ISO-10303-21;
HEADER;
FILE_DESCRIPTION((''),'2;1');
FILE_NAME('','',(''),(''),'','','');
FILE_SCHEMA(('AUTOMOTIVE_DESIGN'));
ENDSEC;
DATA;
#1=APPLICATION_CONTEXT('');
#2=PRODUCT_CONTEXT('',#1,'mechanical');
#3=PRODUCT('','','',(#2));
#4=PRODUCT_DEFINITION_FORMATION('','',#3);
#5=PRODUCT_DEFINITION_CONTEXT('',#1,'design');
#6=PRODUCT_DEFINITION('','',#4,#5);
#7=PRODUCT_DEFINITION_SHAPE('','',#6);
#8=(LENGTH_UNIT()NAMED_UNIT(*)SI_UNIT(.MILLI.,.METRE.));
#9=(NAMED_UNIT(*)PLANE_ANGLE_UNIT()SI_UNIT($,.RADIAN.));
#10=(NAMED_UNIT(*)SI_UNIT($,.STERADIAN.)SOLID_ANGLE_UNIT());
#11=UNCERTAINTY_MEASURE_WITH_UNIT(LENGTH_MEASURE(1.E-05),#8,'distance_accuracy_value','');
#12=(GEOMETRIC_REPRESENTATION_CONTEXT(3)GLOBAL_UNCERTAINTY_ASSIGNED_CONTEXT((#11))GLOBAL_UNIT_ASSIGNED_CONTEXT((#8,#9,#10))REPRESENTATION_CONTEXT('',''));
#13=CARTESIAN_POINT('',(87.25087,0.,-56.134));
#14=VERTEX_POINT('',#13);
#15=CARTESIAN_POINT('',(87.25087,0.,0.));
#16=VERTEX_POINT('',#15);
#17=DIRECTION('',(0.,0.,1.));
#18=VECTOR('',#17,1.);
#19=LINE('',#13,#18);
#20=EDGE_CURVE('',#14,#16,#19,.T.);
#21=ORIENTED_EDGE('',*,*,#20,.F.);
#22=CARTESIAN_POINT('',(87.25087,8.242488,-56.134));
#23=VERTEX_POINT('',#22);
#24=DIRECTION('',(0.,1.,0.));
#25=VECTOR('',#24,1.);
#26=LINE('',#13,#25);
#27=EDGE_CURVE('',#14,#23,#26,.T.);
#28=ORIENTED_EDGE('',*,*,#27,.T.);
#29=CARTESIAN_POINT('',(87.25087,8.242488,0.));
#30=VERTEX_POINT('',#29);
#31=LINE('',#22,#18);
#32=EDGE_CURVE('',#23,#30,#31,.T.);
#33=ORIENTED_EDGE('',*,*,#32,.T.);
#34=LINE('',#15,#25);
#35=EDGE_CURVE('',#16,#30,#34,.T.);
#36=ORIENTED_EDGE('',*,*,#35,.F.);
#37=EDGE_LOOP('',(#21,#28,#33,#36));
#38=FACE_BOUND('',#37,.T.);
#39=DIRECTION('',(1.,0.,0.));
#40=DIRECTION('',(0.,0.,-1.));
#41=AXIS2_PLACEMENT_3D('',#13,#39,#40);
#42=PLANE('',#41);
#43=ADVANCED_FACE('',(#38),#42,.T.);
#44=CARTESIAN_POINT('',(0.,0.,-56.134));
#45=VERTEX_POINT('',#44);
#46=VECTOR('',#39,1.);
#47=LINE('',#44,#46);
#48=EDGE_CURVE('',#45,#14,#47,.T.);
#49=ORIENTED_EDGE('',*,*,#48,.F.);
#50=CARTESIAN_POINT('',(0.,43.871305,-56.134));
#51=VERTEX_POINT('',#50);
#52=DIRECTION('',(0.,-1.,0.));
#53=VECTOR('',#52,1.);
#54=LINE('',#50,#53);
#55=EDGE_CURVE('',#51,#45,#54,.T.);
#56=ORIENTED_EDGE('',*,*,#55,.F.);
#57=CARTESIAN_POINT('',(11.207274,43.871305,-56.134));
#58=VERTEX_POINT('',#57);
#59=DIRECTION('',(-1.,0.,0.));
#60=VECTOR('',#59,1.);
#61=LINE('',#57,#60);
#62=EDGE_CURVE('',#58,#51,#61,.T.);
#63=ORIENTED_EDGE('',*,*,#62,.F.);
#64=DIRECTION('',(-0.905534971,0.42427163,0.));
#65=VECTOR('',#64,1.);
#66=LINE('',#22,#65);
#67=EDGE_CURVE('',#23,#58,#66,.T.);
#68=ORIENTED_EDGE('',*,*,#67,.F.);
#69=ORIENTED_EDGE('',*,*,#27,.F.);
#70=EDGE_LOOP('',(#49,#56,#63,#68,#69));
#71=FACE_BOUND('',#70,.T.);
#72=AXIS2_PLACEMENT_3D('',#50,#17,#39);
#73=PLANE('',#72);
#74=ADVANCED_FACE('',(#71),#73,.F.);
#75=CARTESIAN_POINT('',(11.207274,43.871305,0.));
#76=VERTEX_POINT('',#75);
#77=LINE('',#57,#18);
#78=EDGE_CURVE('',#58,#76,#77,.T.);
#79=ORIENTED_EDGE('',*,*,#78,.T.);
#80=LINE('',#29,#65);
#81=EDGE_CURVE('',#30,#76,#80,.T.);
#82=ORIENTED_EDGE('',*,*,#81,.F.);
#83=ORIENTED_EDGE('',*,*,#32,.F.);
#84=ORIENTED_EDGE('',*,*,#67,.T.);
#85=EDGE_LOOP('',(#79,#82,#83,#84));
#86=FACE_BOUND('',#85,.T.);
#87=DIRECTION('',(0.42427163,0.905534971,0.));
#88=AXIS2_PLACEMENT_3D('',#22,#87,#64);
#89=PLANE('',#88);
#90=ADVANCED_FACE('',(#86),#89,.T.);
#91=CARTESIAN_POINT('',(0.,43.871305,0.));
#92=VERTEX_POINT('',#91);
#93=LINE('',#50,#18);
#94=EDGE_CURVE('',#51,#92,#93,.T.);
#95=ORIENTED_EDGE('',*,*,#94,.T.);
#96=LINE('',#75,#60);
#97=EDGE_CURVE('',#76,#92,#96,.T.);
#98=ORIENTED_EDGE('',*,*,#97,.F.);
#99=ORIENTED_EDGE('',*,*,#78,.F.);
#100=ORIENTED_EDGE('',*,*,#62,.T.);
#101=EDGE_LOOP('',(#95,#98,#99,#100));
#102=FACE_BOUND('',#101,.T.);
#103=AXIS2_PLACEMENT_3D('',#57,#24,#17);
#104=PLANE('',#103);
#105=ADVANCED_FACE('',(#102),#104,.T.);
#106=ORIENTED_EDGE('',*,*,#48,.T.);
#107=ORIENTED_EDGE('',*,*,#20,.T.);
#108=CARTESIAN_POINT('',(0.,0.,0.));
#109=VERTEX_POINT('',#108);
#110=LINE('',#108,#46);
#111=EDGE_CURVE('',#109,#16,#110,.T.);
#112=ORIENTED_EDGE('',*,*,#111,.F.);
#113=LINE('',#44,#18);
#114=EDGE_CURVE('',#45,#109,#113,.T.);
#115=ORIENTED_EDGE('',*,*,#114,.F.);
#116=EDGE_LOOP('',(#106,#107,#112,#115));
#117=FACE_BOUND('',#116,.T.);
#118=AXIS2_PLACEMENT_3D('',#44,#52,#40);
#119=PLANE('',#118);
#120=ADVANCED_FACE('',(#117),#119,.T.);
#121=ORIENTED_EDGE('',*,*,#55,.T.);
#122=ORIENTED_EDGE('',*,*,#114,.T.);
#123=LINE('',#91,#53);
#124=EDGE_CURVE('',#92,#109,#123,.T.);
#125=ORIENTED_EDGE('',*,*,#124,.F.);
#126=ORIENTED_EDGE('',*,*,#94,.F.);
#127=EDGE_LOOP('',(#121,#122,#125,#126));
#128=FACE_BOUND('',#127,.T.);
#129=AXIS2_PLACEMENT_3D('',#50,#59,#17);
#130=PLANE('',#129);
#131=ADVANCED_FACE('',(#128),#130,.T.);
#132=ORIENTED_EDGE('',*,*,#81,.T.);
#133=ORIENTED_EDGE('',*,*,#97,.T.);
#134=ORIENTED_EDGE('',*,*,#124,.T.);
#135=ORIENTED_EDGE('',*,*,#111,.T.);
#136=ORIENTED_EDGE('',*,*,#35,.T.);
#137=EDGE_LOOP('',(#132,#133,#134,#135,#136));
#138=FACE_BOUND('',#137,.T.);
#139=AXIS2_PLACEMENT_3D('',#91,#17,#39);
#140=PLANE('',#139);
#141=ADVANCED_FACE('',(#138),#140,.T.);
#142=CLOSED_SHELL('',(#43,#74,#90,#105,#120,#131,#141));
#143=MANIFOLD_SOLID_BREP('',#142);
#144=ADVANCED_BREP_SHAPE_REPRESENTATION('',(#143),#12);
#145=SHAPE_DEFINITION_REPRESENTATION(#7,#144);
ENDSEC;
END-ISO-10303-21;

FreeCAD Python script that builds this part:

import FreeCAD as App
import Part
import Sketcher

V = App.Vector
Q = App.Units.Quantity


def add_polygon(sketch, points):
    """Adds a closed chain of lines whose ends are joined by coincident constraints."""
    first, n = sketch.GeometryCount, len(points)
    for a, b in zip(points, points[1:] + points[:1]):
        sketch.addGeometry(Part.LineSegment(App.Vector(*a, 0), App.Vector(*b, 0)), False)
    for i in range(n):
        sketch.addConstraint(Sketcher.Constraint("Coincident", first + i, 2, first + (i + 1) % n, 1))

doc = App.newDocument("Part")
body = doc.addObject("PartDesign::Body", "Body")

sketch1 = body.newObject("Sketcher::SketchObject", "Sketch")
sketch1.AttachmentSupport = (doc.getObject("XY_Plane"), [""])
sketch1.MapMode = "FlatFace"
add_polygon(sketch1, [(0, 44), (0, 0), (87, 0), (87, 8), (11, 44)])
sketch1.addConstraint([
    Sketcher.Constraint("Vertical", 0),
    Sketcher.Constraint("Horizontal", 1),
    Sketcher.Constraint("Vertical", 2),
    Sketcher.Constraint("Horizontal", 4),
    Sketcher.Constraint("Coincident", 0, 2, -1, 1),
    Sketcher.Constraint("DistanceX", 1, 1, 1, 2, 87.25087),
    Sketcher.Constraint("DistanceX", 4, 2, 4, 1, 11.207274),
    Sketcher.Constraint("DistanceY", 0, 2, 0, 1, 43.871305),
    Sketcher.Constraint("DistanceY", 2, 1, 2, 2, 8.242488),
])
pad1 = body.newObject("PartDesign::Pad", "Pad")
pad1.Profile = sketch1
pad1.Length = Q("2.21 in")
pad1.Reversed = True

doc.recompute()
